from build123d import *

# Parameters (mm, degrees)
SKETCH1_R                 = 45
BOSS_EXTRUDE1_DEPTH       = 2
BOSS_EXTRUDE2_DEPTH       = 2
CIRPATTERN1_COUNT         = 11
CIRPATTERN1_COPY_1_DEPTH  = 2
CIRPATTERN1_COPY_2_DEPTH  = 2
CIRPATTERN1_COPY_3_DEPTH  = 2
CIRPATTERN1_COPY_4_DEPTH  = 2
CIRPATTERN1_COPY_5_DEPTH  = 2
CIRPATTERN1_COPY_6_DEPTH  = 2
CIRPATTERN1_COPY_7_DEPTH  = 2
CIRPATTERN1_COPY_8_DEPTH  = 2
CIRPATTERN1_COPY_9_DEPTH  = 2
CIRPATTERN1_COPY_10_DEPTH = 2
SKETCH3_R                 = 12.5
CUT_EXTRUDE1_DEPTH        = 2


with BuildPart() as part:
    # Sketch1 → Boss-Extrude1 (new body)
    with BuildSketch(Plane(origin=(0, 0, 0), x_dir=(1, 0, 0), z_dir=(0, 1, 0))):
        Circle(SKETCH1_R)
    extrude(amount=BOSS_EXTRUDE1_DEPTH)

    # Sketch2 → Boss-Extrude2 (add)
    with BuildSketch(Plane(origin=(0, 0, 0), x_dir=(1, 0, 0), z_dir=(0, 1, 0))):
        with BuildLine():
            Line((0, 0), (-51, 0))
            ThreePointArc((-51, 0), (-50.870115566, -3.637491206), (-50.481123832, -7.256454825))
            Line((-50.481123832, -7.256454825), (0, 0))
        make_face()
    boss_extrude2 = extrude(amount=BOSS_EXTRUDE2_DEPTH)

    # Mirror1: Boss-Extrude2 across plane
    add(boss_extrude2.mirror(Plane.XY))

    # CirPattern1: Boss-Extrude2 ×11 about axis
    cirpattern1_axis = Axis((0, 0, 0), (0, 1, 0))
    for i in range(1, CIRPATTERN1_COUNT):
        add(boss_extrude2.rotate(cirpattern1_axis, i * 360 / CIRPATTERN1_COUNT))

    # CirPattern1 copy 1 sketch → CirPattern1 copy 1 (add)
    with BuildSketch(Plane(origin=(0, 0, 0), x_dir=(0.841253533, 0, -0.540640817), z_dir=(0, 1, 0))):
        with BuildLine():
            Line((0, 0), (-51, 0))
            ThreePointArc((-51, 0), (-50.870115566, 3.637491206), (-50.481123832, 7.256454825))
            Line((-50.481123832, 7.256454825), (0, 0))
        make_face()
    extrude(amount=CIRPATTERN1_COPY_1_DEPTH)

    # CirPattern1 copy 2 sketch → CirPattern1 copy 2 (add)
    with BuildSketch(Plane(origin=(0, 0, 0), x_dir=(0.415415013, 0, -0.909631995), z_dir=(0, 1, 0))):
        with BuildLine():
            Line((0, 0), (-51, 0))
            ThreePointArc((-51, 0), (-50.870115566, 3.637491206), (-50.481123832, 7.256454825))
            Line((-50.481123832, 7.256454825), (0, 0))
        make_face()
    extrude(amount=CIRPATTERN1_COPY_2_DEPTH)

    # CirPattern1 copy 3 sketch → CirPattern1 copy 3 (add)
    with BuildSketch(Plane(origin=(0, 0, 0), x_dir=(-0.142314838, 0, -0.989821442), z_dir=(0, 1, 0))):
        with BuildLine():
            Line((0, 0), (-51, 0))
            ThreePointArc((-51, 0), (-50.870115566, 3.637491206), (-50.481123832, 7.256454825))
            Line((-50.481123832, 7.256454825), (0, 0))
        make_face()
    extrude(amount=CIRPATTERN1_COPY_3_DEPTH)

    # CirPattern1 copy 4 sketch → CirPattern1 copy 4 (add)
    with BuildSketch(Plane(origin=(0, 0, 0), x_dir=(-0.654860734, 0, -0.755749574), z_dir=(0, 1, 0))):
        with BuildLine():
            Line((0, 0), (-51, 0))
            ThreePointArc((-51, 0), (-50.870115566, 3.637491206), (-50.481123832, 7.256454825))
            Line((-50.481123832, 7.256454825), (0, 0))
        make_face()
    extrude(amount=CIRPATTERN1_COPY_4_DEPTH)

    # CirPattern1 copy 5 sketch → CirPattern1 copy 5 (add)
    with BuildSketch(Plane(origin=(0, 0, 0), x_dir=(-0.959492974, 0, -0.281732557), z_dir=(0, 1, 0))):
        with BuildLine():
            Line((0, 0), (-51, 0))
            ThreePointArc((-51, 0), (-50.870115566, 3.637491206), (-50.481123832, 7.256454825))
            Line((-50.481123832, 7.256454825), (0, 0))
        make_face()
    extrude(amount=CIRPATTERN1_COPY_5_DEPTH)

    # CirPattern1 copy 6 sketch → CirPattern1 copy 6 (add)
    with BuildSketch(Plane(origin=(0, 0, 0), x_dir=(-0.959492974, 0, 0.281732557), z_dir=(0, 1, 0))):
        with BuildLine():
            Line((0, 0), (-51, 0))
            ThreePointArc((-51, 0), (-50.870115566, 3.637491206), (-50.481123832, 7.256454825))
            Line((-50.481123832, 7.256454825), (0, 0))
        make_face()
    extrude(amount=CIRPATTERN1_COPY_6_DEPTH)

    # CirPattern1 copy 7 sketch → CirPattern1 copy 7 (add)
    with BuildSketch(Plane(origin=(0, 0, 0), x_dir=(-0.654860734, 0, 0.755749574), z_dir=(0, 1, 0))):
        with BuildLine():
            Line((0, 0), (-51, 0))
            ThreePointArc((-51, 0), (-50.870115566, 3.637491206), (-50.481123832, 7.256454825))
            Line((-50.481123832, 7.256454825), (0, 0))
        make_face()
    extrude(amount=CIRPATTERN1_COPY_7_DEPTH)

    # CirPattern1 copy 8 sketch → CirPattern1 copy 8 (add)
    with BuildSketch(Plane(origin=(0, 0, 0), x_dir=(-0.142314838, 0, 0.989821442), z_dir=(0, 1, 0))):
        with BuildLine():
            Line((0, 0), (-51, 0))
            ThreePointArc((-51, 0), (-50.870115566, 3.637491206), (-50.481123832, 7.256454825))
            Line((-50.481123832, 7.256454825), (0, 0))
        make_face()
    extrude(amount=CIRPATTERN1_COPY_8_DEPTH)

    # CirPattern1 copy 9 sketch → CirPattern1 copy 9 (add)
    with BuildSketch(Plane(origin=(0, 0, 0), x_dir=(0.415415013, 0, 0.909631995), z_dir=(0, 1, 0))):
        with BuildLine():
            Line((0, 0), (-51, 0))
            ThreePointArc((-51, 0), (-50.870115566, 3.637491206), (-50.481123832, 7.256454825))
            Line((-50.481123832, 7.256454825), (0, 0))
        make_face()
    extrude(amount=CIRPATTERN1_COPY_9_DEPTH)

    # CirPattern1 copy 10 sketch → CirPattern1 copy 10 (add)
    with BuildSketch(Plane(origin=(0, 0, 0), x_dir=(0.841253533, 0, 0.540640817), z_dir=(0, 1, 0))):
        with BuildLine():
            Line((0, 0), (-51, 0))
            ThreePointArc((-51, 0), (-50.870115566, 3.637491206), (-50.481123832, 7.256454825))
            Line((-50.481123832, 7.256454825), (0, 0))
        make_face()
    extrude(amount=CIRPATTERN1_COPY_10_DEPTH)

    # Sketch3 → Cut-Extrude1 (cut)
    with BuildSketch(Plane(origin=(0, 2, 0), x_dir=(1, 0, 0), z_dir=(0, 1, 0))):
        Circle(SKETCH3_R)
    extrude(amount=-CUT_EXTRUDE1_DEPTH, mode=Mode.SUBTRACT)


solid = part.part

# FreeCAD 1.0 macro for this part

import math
import FreeCAD as App
import Part
import Sketcher
Q = App.Units.Quantity

doc = App.newDocument("Part")
body = doc.addObject("PartDesign::Body", "Body")

# Sketch on XZ plane
sketch1 = body.newObject("Sketcher::SketchObject", "Sketch")
sketch1.AttachmentSupport = (doc.getObject("XZ_Plane"), [""])
sketch1.MapMode = "FlatFace"
sketch1.addGeometry(Part.Circle(App.Vector(0, 0, 0), App.Vector(0, 0, 1), 45), False)
sketch1.addConstraint(Sketcher.Constraint("Coincident", 0, 3, -1, 1))
sketch1.addConstraint(Sketcher.Constraint("Diameter", 0, 90.0))
pad1 = body.newObject("PartDesign::Pad", "Pad")
pad1.Profile = sketch1
pad1.Length = 2
pad1.Reversed = True

# Sketch on XZ plane
sketch2 = body.newObject("Sketcher::SketchObject", "Sketch001")
sketch2.AttachmentSupport = (doc.getObject("XZ_Plane"), [""])
sketch2.MapMode = "FlatFace"
sketch2.addGeometry(Part.LineSegment(App.Vector(0, 0, 0), App.Vector(-51, 0, 0)), False)
sketch2.addGeometry(Part.ArcOfCircle(Part.Circle(App.Vector(0, 0, 0), App.Vector(0, 0, 1), 51), math.radians(171.82), math.radians(180)), False)
sketch2.addGeometry(Part.LineSegment(App.Vector(-50.481124, 7.256455, 0), App.Vector(0, 0, 0)), False)
sketch2.addConstraint(Sketcher.Constraint("Coincident", 0, 2, 1, 2))
sketch2.addConstraint(Sketcher.Constraint("Coincident", 1, 1, 2, 1))
sketch2.addConstraint(Sketcher.Constraint("Coincident", 2, 2, 0, 1))
sketch2.addConstraint(Sketcher.Constraint("Horizontal", 0))
sketch2.addConstraint(Sketcher.Constraint("Coincident", 1, 3, -1, 1))
sketch2.addConstraint(Sketcher.Constraint("Coincident", 2, 2, -1, 1))
sketch2.addConstraint(Sketcher.Constraint("Radius", 1, 51.0))
sketch2.addConstraint(Sketcher.Constraint("Angle", 2, Q("-8.18 deg")))
pad2 = body.newObject("PartDesign::Pad", "Pad001")
pad2.Profile = sketch2
pad2.Length = 2
pad2.Reversed = True
doc.recompute()

mirrored = body.newObject("PartDesign::Mirrored", "Mirrored")
mirrored.Originals = [pad2]
mirrored.MirrorPlane = (doc.getObject("XY_Plane"), [""])
body.Tip = mirrored
doc.recompute()

polarpattern = body.newObject("PartDesign::PolarPattern", "PolarPattern")
polarpattern.Originals = [pad2]
polarpattern.Axis = (doc.getObject("Y_Axis"), [""])
polarpattern.Angle = 360
polarpattern.Occurrences = 11
body.Tip = polarpattern

# Sketch on XZ plane
sketch3 = body.newObject("Sketcher::SketchObject", "Sketch002")
sketch3.AttachmentSupport = (doc.getObject("XZ_Plane"), [""])
sketch3.MapMode = "FlatFace"
sketch3.addGeometry(Part.LineSegment(App.Vector(-42.90393, 27.572682, 0), App.Vector(0, 0, 0)), False)
sketch3.addGeometry(Part.LineSegment(App.Vector(0, 0, 0), App.Vector(-46.390559, 21.187638, 0)), False)
sketch3.addGeometry(Part.ArcOfCircle(Part.Circle(App.Vector(0, 0, 0), App.Vector(0, 0, 1), 51), math.radians(147.272727), math.radians(155.452727)), False)
sketch3.addConstraint(Sketcher.Constraint("Coincident", 0, 2, 1, 1))
sketch3.addConstraint(Sketcher.Constraint("Coincident", 1, 2, 2, 2))
sketch3.addConstraint(Sketcher.Constraint("Coincident", 2, 1, 0, 1))
sketch3.addConstraint(Sketcher.Constraint("Coincident", 2, 3, -1, 1))
sketch3.addConstraint(Sketcher.Constraint("Coincident", 0, 2, -1, 1))
sketch3.addConstraint(Sketcher.Constraint("Radius", 2, 51.0))
sketch3.addConstraint(Sketcher.Constraint("DistanceX", 1, 2, -1, 1, 46.390559))
sketch3.addConstraint(Sketcher.Constraint("DistanceX", 2, 1, -1, 1, 42.90393))
pad3 = body.newObject("PartDesign::Pad", "Pad002")
pad3.Profile = sketch3
pad3.Length = 2
pad3.Reversed = True

# Sketch on XZ plane
sketch4 = body.newObject("Sketcher::SketchObject", "Sketch003")
sketch4.AttachmentSupport = (doc.getObject("XZ_Plane"), [""])
sketch4.MapMode = "FlatFace"
sketch4.addGeometry(Part.LineSegment(App.Vector(-21.186166, 46.391232, 0), App.Vector(0, 0, 0)), False)
sketch4.addGeometry(Part.LineSegment(App.Vector(0, 0, 0), App.Vector(-27.57132, 42.904805, 0)), False)
sketch4.addGeometry(Part.ArcOfCircle(Part.Circle(App.Vector(0, 0, 0), App.Vector(0, 0, 1), 51), math.radians(114.545455), math.radians(122.725455)), False)
sketch4.addConstraint(Sketcher.Constraint("Coincident", 0, 2, 1, 1))
sketch4.addConstraint(Sketcher.Constraint("Coincident", 1, 2, 2, 2))
sketch4.addConstraint(Sketcher.Constraint("Coincident", 2, 1, 0, 1))
sketch4.addConstraint(Sketcher.Constraint("Coincident", 2, 3, -1, 1))
sketch4.addConstraint(Sketcher.Constraint("Coincident", 0, 2, -1, 1))
sketch4.addConstraint(Sketcher.Constraint("Radius", 2, 51.0))
sketch4.addConstraint(Sketcher.Constraint("DistanceX", 1, 2, -1, 1, 27.57132))
sketch4.addConstraint(Sketcher.Constraint("DistanceY", -1, 1, 2, 1, 46.391232))
pad4 = body.newObject("PartDesign::Pad", "Pad003")
pad4.Profile = sketch4
pad4.Length = 2
pad4.Reversed = True

# Sketch on XZ plane
sketch5 = body.newObject("Sketcher::SketchObject", "Sketch004")
sketch5.AttachmentSupport = (doc.getObject("XZ_Plane"), [""])
sketch5.MapMode = "FlatFace"
sketch5.addGeometry(Part.LineSegment(App.Vector(7.258057, 50.480894, 0), App.Vector(0, 0, 0)), False)
sketch5.addGeometry(Part.LineSegment(App.Vector(0, 0, 0), App.Vector(0.001618, 51, 0)), False)
sketch5.addGeometry(Part.ArcOfCircle(Part.Circle(App.Vector(0, 0, 0), App.Vector(0, 0, 1), 51), math.radians(81.818182), math.radians(89.998182)), False)
sketch5.addConstraint(Sketcher.Constraint("Coincident", 0, 2, 1, 1))
sketch5.addConstraint(Sketcher.Constraint("Coincident", 1, 2, 2, 2))
sketch5.addConstraint(Sketcher.Constraint("Coincident", 2, 1, 0, 1))
sketch5.addConstraint(Sketcher.Constraint("Coincident", 2, 3, -1, 1))
sketch5.addConstraint(Sketcher.Constraint("Coincident", 0, 2, -1, 1))
sketch5.addConstraint(Sketcher.Constraint("Radius", 2, 51.0))
sketch5.addConstraint(Sketcher.Constraint("DistanceX", -1, 1, 1, 2, 0.001618))
sketch5.addConstraint(Sketcher.Constraint("DistanceX", 1, 2, 2, 1, 7.256438))
pad5 = body.newObject("PartDesign::Pad", "Pad004")
pad5.Profile = sketch5
pad5.Length = 2
pad5.Reversed = True

# Sketch on XZ plane
sketch6 = body.newObject("Sketcher::SketchObject", "Sketch005")
sketch6.AttachmentSupport = (doc.getObject("XZ_Plane"), [""])
sketch6.MapMode = "FlatFace"
sketch6.addGeometry(Part.LineSegment(App.Vector(33.397897, 38.543228, 0), App.Vector(0, 0, 0)), False)
sketch6.addGeometry(Part.LineSegment(App.Vector(0, 0, 0), App.Vector(27.574043, 42.903055, 0)), False)
sketch6.addGeometry(Part.ArcOfCircle(Part.Circle(App.Vector(0, 0, 0), App.Vector(0, 0, 1), 51), math.radians(49.090909), math.radians(57.270909)), False)
sketch6.addConstraint(Sketcher.Constraint("Coincident", 0, 2, 1, 1))
sketch6.addConstraint(Sketcher.Constraint("Coincident", 1, 2, 2, 2))
sketch6.addConstraint(Sketcher.Constraint("Coincident", 2, 1, 0, 1))
sketch6.addConstraint(Sketcher.Constraint("Coincident", 2, 3, -1, 1))
sketch6.addConstraint(Sketcher.Constraint("Coincident", 0, 2, -1, 1))
sketch6.addConstraint(Sketcher.Constraint("Radius", 2, 51.0))
sketch6.addConstraint(Sketcher.Constraint("DistanceY", -1, 1, 2, 1, 38.543228))
sketch6.addConstraint(Sketcher.Constraint("DistanceX", -1, 1, 1, 2, 27.574043))
pad6 = body.newObject("PartDesign::Pad", "Pad005")
pad6.Profile = sketch6
pad6.Length = 2
pad6.Reversed = True

# Sketch on XZ plane
sketch7 = body.newObject("Sketcher::SketchObject", "Sketch006")
sketch7.AttachmentSupport = (doc.getObject("XZ_Plane"), [""])
sketch7.MapMode = "FlatFace"
sketch7.addGeometry(Part.LineSegment(App.Vector(48.934142, 14.36836, 0), App.Vector(0, 0, 0)), False)
sketch7.addGeometry(Part.LineSegment(App.Vector(0, 0, 0), App.Vector(46.391904, 21.184694, 0)), False)
sketch7.addGeometry(Part.ArcOfCircle(Part.Circle(App.Vector(0, 0, 0), App.Vector(0, 0, 1), 51), math.radians(16.363636), math.radians(24.543636)), False)
sketch7.addConstraint(Sketcher.Constraint("Coincident", 0, 2, 1, 1))
sketch7.addConstraint(Sketcher.Constraint("Coincident", 1, 2, 2, 2))
sketch7.addConstraint(Sketcher.Constraint("Coincident", 2, 1, 0, 1))
sketch7.addConstraint(Sketcher.Constraint("Coincident", 2, 3, -1, 1))
sketch7.addConstraint(Sketcher.Constraint("Coincident", 0, 2, -1, 1))
sketch7.addConstraint(Sketcher.Constraint("Radius", 2, 51.0))
sketch7.addConstraint(Sketcher.Constraint("DistanceX", -1, 1, 2, 1, 48.934142))
sketch7.addConstraint(Sketcher.Constraint("DistanceX", -1, 1, 1, 2, 46.391904))
pad7 = body.newObject("PartDesign::Pad", "Pad006")
pad7.Profile = sketch7
pad7.Length = 2
pad7.Reversed = True

# Sketch on XZ plane
sketch8 = body.newObject("Sketcher::SketchObject", "Sketch007")
sketch8.AttachmentSupport = (doc.getObject("XZ_Plane"), [""])
sketch8.MapMode = "FlatFace"
sketch8.addGeometry(Part.LineSegment(App.Vector(48.934142, -14.36836, 0), App.Vector(0, 0, 0)), False)
sketch8.addGeometry(Part.LineSegment(App.Vector(0, 0, 0), App.Vector(50.480663, -7.259659, 0)), False)
sketch8.addGeometry(Part.ArcOfCircle(Part.Circle(App.Vector(0, 0, 0), App.Vector(0, 0, 1), 51), math.radians(-16.363636), math.radians(-8.183636)), False)
sketch8.addConstraint(Sketcher.Constraint("Coincident", 0, 2, 1, 1))
sketch8.addConstraint(Sketcher.Constraint("Coincident", 1, 2, 2, 2))
sketch8.addConstraint(Sketcher.Constraint("Coincident", 2, 1, 0, 1))
sketch8.addConstraint(Sketcher.Constraint("Coincident", 2, 3, -1, 1))
sketch8.addConstraint(Sketcher.Constraint("Coincident", 0, 2, -1, 1))
sketch8.addConstraint(Sketcher.Constraint("Radius", 2, 51.0))
sketch8.addConstraint(Sketcher.Constraint("DistanceY", 2, 1, 1, 2, 7.108702))
sketch8.addConstraint(Sketcher.Constraint("DistanceY", 1, 2, -1, 1, 7.259659))
pad8 = body.newObject("PartDesign::Pad", "Pad007")
pad8.Profile = sketch8
pad8.Length = 2
pad8.Reversed = True

# Sketch on XZ plane
sketch9 = body.newObject("Sketcher::SketchObject", "Sketch008")
sketch9.AttachmentSupport = (doc.getObject("XZ_Plane"), [""])
sketch9.MapMode = "FlatFace"
sketch9.addGeometry(Part.LineSegment(App.Vector(33.397897, -38.543228, 0), App.Vector(0, 0, 0)), False)
sketch9.addGeometry(Part.LineSegment(App.Vector(0, 0, 0), App.Vector(38.542168, -33.39912, 0)), False)
sketch9.addGeometry(Part.ArcOfCircle(Part.Circle(App.Vector(0, 0, 0), App.Vector(0, 0, 1), 51), math.radians(-49.090909), math.radians(-40.910909)), False)
sketch9.addConstraint(Sketcher.Constraint("Coincident", 0, 2, 1, 1))
sketch9.addConstraint(Sketcher.Constraint("Coincident", 1, 2, 2, 2))
sketch9.addConstraint(Sketcher.Constraint("Coincident", 2, 1, 0, 1))
sketch9.addConstraint(Sketcher.Constraint("Coincident", 2, 3, -1, 1))
sketch9.addConstraint(Sketcher.Constraint("Coincident", 0, 2, -1, 1))
sketch9.addConstraint(Sketcher.Constraint("Radius", 2, 51.0))
sketch9.addConstraint(Sketcher.Constraint("DistanceX", -1, 1, 1, 2, 38.542168))
sketch9.addConstraint(Sketcher.Constraint("DistanceY", 2, 1, -1, 1, 38.543228))
pad9 = body.newObject("PartDesign::Pad", "Pad008")
pad9.Profile = sketch9
pad9.Length = 2
pad9.Reversed = True

# Sketch on XZ plane
sketch10 = body.newObject("Sketcher::SketchObject", "Sketch009")
sketch10.AttachmentSupport = (doc.getObject("XZ_Plane"), [""])
sketch10.MapMode = "FlatFace"
sketch10.addGeometry(Part.LineSegment(App.Vector(7.258057, -50.480894, 0), App.Vector(0, 0, 0)), False)
sketch10.addGeometry(Part.LineSegment(App.Vector(0, 0, 0), App.Vector(14.366808, -48.934598, 0)), False)
sketch10.addGeometry(Part.ArcOfCircle(Part.Circle(App.Vector(0, 0, 0), App.Vector(0, 0, 1), 51), math.radians(-81.818182), math.radians(-73.638182)), False)
sketch10.addConstraint(Sketcher.Constraint("Coincident", 0, 2, 1, 1))
sketch10.addConstraint(Sketcher.Constraint("Coincident", 1, 2, 2, 2))
sketch10.addConstraint(Sketcher.Constraint("Coincident", 2, 1, 0, 1))
sketch10.addConstraint(Sketcher.Constraint("Coincident", 2, 3, -1, 1))
sketch10.addConstraint(Sketcher.Constraint("Coincident", 0, 2, -1, 1))
sketch10.addConstraint(Sketcher.Constraint("Radius", 2, 51.0))
sketch10.addConstraint(Sketcher.Constraint("DistanceX", 2, 1, 1, 2, 7.108751))
sketch10.addConstraint(Sketcher.Constraint("DistanceX", -1, 1, 1, 2, 14.366808))
pad10 = body.newObject("PartDesign::Pad", "Pad009")
pad10.Profile = sketch10
pad10.Length = 2
pad10.Reversed = True

# Sketch on XZ plane
sketch11 = body.newObject("Sketcher::SketchObject", "Sketch010")
sketch11.AttachmentSupport = (doc.getObject("XZ_Plane"), [""])
sketch11.MapMode = "FlatFace"
sketch11.addGeometry(Part.LineSegment(App.Vector(-21.186166, -46.391232, 0), App.Vector(0, 0, 0)), False)
sketch11.addGeometry(Part.LineSegment(App.Vector(0, 0, 0), App.Vector(-14.369913, -48.933686, 0)), False)
sketch11.addGeometry(Part.ArcOfCircle(Part.Circle(App.Vector(0, 0, 0), App.Vector(0, 0, 1), 51), math.radians(-114.545455), math.radians(-106.365455)), False)
sketch11.addConstraint(Sketcher.Constraint("Coincident", 0, 2, 1, 1))
sketch11.addConstraint(Sketcher.Constraint("Coincident", 1, 2, 2, 2))
sketch11.addConstraint(Sketcher.Constraint("Coincident", 2, 1, 0, 1))
sketch11.addConstraint(Sketcher.Constraint("Coincident", 2, 3, -1, 1))
sketch11.addConstraint(Sketcher.Constraint("Coincident", 0, 2, -1, 1))
sketch11.addConstraint(Sketcher.Constraint("Radius", 2, 51.0))
sketch11.addConstraint(Sketcher.Constraint("DistanceY", 2, 1, -1, 1, 46.391232))
sketch11.addConstraint(Sketcher.Constraint("DistanceX", 1, 2, -1, 1, 14.369913))
pad11 = body.newObject("PartDesign::Pad", "Pad010")
pad11.Profile = sketch11
pad11.Length = 2
pad11.Reversed = True

# Sketch on XZ plane
sketch12 = body.newObject("Sketcher::SketchObject", "Sketch011")
sketch12.AttachmentSupport = (doc.getObject("XZ_Plane"), [""])
sketch12.MapMode = "FlatFace"
sketch12.addGeometry(Part.LineSegment(App.Vector(-42.90393, -27.572682, 0), App.Vector(0, 0, 0)), False)
sketch12.addGeometry(Part.LineSegment(App.Vector(0, 0, 0), App.Vector(-38.544288, -33.396674, 0)), False)
sketch12.addGeometry(Part.ArcOfCircle(Part.Circle(App.Vector(0, 0, 0), App.Vector(0, 0, 1), 51), math.radians(-147.272727), math.radians(-139.092727)), False)
sketch12.addConstraint(Sketcher.Constraint("Coincident", 0, 2, 1, 1))
sketch12.addConstraint(Sketcher.Constraint("Coincident", 1, 2, 2, 2))
sketch12.addConstraint(Sketcher.Constraint("Coincident", 2, 1, 0, 1))
sketch12.addConstraint(Sketcher.Constraint("Coincident", 2, 3, -1, 1))
sketch12.addConstraint(Sketcher.Constraint("Coincident", 0, 2, -1, 1))
sketch12.addConstraint(Sketcher.Constraint("Radius", 2, 51.0))
sketch12.addConstraint(Sketcher.Constraint("DistanceX", 1, 2, -1, 1, 38.544288))
sketch12.addConstraint(Sketcher.Constraint("DistanceX", 2, 1, -1, 1, 42.90393))
pad12 = body.newObject("PartDesign::Pad", "Pad011")
pad12.Profile = sketch12
pad12.Length = 2
pad12.Reversed = True

# Sketch on XZ plane
sketch13 = body.newObject("Sketcher::SketchObject", "Sketch012")
sketch13.AttachmentSupport = (doc.getObject("XZ_Plane"), [""])
sketch13.MapMode = "FlatFace"
sketch13.AttachmentOffset = App.Placement(App.Vector(0, 0, -2), App.Rotation())
sketch13.addGeometry(Part.Circle(App.Vector(0, 0, 0), App.Vector(0, 0, 1), 12.5), False)
sketch13.addConstraint(Sketcher.Constraint("Coincident", 0, 3, -1, 1))
sketch13.addConstraint(Sketcher.Constraint("Diameter", 0, 25.0))
pocket1 = body.newObject("PartDesign::Pocket", "Pocket")
pocket1.Profile = sketch13
pocket1.Length = 2
pocket1.Reversed = True

doc.recompute()
